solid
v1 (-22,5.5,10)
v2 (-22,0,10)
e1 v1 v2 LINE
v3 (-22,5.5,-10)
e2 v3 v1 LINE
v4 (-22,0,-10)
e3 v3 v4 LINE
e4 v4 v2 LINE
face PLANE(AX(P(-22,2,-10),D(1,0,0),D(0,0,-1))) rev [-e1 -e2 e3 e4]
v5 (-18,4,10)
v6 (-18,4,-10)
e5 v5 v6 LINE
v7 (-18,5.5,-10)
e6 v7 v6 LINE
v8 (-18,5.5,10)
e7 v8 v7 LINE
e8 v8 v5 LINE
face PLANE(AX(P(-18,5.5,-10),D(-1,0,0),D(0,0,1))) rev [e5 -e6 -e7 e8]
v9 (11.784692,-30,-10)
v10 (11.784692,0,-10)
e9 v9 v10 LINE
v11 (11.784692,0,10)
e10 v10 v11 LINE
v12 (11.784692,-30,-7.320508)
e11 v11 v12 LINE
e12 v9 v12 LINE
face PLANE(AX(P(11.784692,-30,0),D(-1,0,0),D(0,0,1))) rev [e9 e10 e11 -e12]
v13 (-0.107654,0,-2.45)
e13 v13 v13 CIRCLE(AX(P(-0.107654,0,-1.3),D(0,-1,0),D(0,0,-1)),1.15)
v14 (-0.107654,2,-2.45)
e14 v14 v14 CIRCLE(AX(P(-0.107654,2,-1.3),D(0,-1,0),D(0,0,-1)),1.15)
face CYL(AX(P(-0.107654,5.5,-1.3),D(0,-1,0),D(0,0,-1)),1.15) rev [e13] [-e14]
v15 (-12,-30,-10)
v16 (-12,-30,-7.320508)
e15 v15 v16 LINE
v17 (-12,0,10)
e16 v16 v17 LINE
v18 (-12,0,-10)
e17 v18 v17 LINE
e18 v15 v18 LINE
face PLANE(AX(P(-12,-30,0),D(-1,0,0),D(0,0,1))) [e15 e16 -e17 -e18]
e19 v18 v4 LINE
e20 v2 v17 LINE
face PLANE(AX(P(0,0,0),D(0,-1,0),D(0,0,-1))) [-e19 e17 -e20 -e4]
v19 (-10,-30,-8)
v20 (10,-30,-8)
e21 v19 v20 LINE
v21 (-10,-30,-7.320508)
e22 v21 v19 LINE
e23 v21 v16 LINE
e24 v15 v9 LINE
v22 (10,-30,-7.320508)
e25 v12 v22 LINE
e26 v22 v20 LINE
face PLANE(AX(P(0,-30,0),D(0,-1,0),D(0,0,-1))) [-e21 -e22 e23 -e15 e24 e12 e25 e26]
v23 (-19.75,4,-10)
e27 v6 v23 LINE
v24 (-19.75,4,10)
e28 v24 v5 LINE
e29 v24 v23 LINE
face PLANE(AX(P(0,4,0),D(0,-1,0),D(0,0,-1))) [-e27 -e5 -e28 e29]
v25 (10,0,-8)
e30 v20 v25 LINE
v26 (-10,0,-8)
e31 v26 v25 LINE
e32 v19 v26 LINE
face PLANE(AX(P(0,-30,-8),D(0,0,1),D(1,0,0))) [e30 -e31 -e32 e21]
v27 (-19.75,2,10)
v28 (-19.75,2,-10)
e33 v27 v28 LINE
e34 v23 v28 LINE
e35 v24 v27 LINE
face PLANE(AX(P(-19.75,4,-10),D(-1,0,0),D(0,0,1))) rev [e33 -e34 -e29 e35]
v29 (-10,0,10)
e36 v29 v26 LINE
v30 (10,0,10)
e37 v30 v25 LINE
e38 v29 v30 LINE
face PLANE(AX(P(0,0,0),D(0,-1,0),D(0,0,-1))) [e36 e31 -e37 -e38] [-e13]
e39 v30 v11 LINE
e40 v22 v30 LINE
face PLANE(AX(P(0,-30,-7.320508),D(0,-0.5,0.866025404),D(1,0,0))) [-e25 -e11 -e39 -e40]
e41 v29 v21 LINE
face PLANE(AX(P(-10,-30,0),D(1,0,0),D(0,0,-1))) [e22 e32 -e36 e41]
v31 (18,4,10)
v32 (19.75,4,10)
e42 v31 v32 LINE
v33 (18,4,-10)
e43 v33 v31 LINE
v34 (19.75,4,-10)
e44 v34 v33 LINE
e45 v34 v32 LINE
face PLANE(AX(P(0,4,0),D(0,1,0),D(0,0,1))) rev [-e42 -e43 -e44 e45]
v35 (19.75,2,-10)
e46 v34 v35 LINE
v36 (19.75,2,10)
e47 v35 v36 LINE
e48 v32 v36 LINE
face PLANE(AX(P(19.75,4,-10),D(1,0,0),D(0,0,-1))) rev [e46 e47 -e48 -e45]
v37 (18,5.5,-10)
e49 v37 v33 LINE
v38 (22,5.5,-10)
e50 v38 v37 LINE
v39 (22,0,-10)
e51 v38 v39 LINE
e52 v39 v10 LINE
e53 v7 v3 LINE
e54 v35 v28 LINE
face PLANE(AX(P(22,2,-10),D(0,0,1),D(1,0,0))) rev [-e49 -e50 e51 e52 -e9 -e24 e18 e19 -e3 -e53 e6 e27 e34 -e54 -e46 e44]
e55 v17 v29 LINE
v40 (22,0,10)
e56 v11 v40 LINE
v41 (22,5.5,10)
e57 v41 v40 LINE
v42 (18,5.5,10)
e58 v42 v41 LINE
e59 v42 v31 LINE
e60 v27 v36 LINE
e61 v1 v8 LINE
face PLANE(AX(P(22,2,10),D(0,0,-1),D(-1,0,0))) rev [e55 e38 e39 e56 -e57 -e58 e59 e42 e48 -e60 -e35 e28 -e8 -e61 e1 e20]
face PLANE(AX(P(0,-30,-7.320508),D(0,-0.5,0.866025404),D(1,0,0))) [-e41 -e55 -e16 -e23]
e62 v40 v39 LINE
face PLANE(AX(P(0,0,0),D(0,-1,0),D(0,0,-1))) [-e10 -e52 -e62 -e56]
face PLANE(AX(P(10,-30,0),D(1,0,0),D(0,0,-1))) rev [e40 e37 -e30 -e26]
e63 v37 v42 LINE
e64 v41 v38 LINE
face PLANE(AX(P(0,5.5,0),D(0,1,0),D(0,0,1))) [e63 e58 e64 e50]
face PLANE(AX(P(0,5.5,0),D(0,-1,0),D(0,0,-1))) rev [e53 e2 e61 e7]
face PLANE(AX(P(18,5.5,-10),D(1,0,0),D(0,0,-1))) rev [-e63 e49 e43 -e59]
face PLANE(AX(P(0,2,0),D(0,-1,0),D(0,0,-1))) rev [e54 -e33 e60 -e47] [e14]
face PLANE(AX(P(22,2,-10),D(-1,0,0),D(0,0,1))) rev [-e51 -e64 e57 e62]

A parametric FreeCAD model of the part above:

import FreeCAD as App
import Part
import Sketcher
from FreeCAD import Vector


def edges_at(feature, points):
    """Names of the edges that pass closest to the given points."""
    edges = feature.Shape.Edges
    near = lambda p: min(range(len(edges)), key=lambda i: edges[i].distToShape(Part.Vertex(*p))[0])
    return sorted({f"Edge{near(p) + 1}" for p in points})

doc = App.newDocument("Part")
body = doc.addObject("PartDesign::Body", "Body")

# Sketch on XZ plane
sketch1 = doc.addObject("Sketcher::SketchObject", "Sketch")
body.addObject(sketch1)
sketch1.AttachmentSupport = (doc.XZ_Plane, [""])
sketch1.MapMode = "FlatFace"
sketch1.addGeometry([
    Part.LineSegment(Vector(-22, -10, 0), Vector(-22, 10, 0)),
    Part.LineSegment(Vector(-22, 10, 0), Vector(22, 10, 0)),
    Part.LineSegment(Vector(22, 10, 0), Vector(22, -10, 0)),
    Part.LineSegment(Vector(22, -10, 0), Vector(-22, -10, 0)),
], False)
sketch1.addConstraint([
    Sketcher.Constraint("Coincident", 0, 2, 1, 1),
    Sketcher.Constraint("Coincident", 1, 2, 2, 1),
    Sketcher.Constraint("Coincident", 2, 2, 3, 1),
    Sketcher.Constraint("Coincident", 3, 2, 0, 1),
    Sketcher.Constraint("Vertical", 0),
    Sketcher.Constraint("Horizontal", 1),
    Sketcher.Constraint("Vertical", 2),
    Sketcher.Constraint("Horizontal", 3),
    Sketcher.Constraint("Symmetric", 0, 2, 2, 2, -1, 1),
    Sketcher.Constraint("DistanceX", 1, 1, 1, 2, 44.0),
    Sketcher.Constraint("DistanceY", 0, 1, 0, 2, 20.0),
])
pad1 = doc.addObject("PartDesign::Pad", "Pad")
body.addObject(pad1)
pad1.Profile = sketch1
pad1.Length = 2
pad1.Reversed = True

# Sketch on XZ plane
sketch2 = doc.addObject("Sketcher::SketchObject", "Sketch001")
body.addObject(sketch2)
sketch2.AttachmentSupport = (doc.XZ_Plane, [""])
sketch2.MapMode = "FlatFace"
sketch2.AttachmentOffset = App.Placement(Vector(0, 0, -2), App.Rotation())
sketch2.addGeometry([
    Part.LineSegment(Vector(-22, -10, 0), Vector(-22, 10, 0)),  # 0
    Part.LineSegment(Vector(-22, 10, 0), Vector(-19.8, 10, 0)),  # 1
    Part.LineSegment(Vector(-19.8, 10, 0), Vector(-19.8, -10, 0)),  # 2
    Part.LineSegment(Vector(-19.8, -10, 0), Vector(-22, -10, 0)),  # 3
    Part.LineSegment(Vector(19.8, -10, 0), Vector(19.8, 10, 0)),  # 4
    Part.LineSegment(Vector(19.8, 10, 0), Vector(22, 10, 0)),  # 5
    Part.LineSegment(Vector(22, 10, 0), Vector(22, -10, 0)),  # 6
    Part.LineSegment(Vector(22, -10, 0), Vector(19.8, -10, 0)),  # 7
], False)
sketch2.addConstraint([
    Sketcher.Constraint("Coincident", 0, 2, 1, 1),
    Sketcher.Constraint("Coincident", 1, 2, 2, 1),
    Sketcher.Constraint("Coincident", 2, 2, 3, 1),
    Sketcher.Constraint("Coincident", 3, 2, 0, 1),
    Sketcher.Constraint("Coincident", 4, 2, 5, 1),
    Sketcher.Constraint("Coincident", 5, 2, 6, 1),
    Sketcher.Constraint("Coincident", 6, 2, 7, 1),
    Sketcher.Constraint("Coincident", 7, 2, 4, 1),
    Sketcher.Constraint("Vertical", 0),
    Sketcher.Constraint("Horizontal", 1),
    Sketcher.Constraint("Vertical", 2),
    Sketcher.Constraint("Horizontal", 3),
    Sketcher.Constraint("Vertical", 4),
    Sketcher.Constraint("Horizontal", 5),
    Sketcher.Constraint("Vertical", 6),
    Sketcher.Constraint("Horizontal", 7),
    Sketcher.Constraint("Symmetric", 2, 2, 4, 2, -1, 1),
    Sketcher.Constraint("Symmetric", 0, 2, 6, 2, -1, 1),
    Sketcher.Constraint("Horizontal", 1, 2, 4, 2),
    Sketcher.Constraint("DistanceY", 0, 1, 0, 2, 20.0),
    Sketcher.Constraint("DistanceX", 0, 2, -1, 1, 22.0),
    Sketcher.Constraint("DistanceX", 1, 1, 1, 2, 2.25),
])
pad2 = doc.addObject("PartDesign::Pad", "Pad001")
body.addObject(pad2)
pad2.Profile = sketch2
pad2.Length = 2
pad2.Reversed = True

# Sketch on XZ plane
sketch3 = doc.addObject("Sketcher::SketchObject", "Sketch002")
body.addObject(sketch3)
sketch3.AttachmentSupport = (doc.XZ_Plane, [""])
sketch3.MapMode = "FlatFace"
sketch3.AttachmentOffset = App.Placement(Vector(0, 0, -4), App.Rotation())
sketch3.addGeometry([
    Part.LineSegment(Vector(-22, -10, 0), Vector(-22, 10, 0)),  # 0
    Part.LineSegment(Vector(-22, 10, 0), Vector(-18, 10, 0)),  # 1
    Part.LineSegment(Vector(-18, 10, 0), Vector(-18, -10, 0)),  # 2
    Part.LineSegment(Vector(-18, -10, 0), Vector(-22, -10, 0)),  # 3
    Part.LineSegment(Vector(18, -10, 0), Vector(18, 10, 0)),  # 4
    Part.LineSegment(Vector(18, 10, 0), Vector(22, 10, 0)),  # 5
    Part.LineSegment(Vector(22, 10, 0), Vector(22, -10, 0)),  # 6
    Part.LineSegment(Vector(22, -10, 0), Vector(18, -10, 0)),  # 7
], False)
sketch3.addConstraint([
    Sketcher.Constraint("Coincident", 0, 2, 1, 1),
    Sketcher.Constraint("Coincident", 1, 2, 2, 1),
    Sketcher.Constraint("Coincident", 2, 2, 3, 1),
    Sketcher.Constraint("Coincident", 3, 2, 0, 1),
    Sketcher.Constraint("Coincident", 4, 2, 5, 1),
    Sketcher.Constraint("Coincident", 5, 2, 6, 1),
    Sketcher.Constraint("Coincident", 6, 2, 7, 1),
    Sketcher.Constraint("Coincident", 7, 2, 4, 1),
    Sketcher.Constraint("Vertical", 0),
    Sketcher.Constraint("Horizontal", 1),
    Sketcher.Constraint("Vertical", 2),
    Sketcher.Constraint("Horizontal", 3),
    Sketcher.Constraint("Vertical", 4),
    Sketcher.Constraint("Horizontal", 5),
    Sketcher.Constraint("Vertical", 6),
    Sketcher.Constraint("Horizontal", 7),
    Sketcher.Constraint("Symmetric", 2, 2, 4, 2, -1, 1),
    Sketcher.Constraint("Symmetric", 0, 2, 6, 2, -1, 1),
    Sketcher.Constraint("Horizontal", 1, 2, 4, 2),
    Sketcher.Constraint("DistanceX", 1, 1, 1, 2, 4.0),
    Sketcher.Constraint("DistanceY", 0, 1, 0, 2, 20.0),
    Sketcher.Constraint("DistanceX", 0, 2, -1, 1, 22.0),
])
pad3 = doc.addObject("PartDesign::Pad", "Pad002")
body.addObject(pad3)
pad3.Profile = sketch3
pad3.Length = 1.5
pad3.Reversed = True

# Sketch on XZ plane
sketch4 = doc.addObject("Sketcher::SketchObject", "Sketch003")
body.addObject(sketch4)
sketch4.AttachmentSupport = (doc.XZ_Plane, [""])
sketch4.MapMode = "FlatFace"
sketch4.addGeometry([
    Part.LineSegment(Vector(-12, -10, 0), Vector(11.8, -10, 0)),  # 0
    Part.LineSegment(Vector(11.8, -10, 0), Vector(11.8, 10, 0)),  # 1
    Part.LineSegment(Vector(11.8, 10, 0), Vector(10, 10, 0)),  # 2
    Part.LineSegment(Vector(10, 10, 0), Vector(10, -8, 0)),  # 3
    Part.LineSegment(Vector(10, -8, 0), Vector(-10, -8, 0)),  # 4
    Part.LineSegment(Vector(-10, -8, 0), Vector(-10, 10, 0)),  # 5
    Part.LineSegment(Vector(-10, 10, 0), Vector(-12, 10, 0)),  # 6
    Part.LineSegment(Vector(-12, 10, 0), Vector(-12, -10, 0)),  # 7
], False)
sketch4.addConstraint([
    Sketcher.Constraint("Coincident", 0, 2, 1, 1),
    Sketcher.Constraint("Coincident", 1, 2, 2, 1),
    Sketcher.Constraint("Coincident", 2, 2, 3, 1),
    Sketcher.Constraint("Coincident", 3, 2, 4, 1),
    Sketcher.Constraint("Coincident", 4, 2, 5, 1),
    Sketcher.Constraint("Coincident", 5, 2, 6, 1),
    Sketcher.Constraint("Coincident", 6, 2, 7, 1),
    Sketcher.Constraint("Coincident", 7, 2, 0, 1),
    Sketcher.Constraint("Horizontal", 0),
    Sketcher.Constraint("Vertical", 1),
    Sketcher.Constraint("Horizontal", 2),
    Sketcher.Constraint("Vertical", 3),
    Sketcher.Constraint("Horizontal", 4),
    Sketcher.Constraint("Vertical", 5),
    Sketcher.Constraint("Horizontal", 6),
    Sketcher.Constraint("Vertical", 7),
    Sketcher.Constraint("Symmetric", 2, 2, 5, 2, -2),
    Sketcher.Constraint("Equal", 4, 1),
    Sketcher.Constraint("DistanceX", 4, 2, 4, 1, 20.0),
    Sketcher.Constraint("DistanceX", 6, 2, 6, 1, 2.0),
    Sketcher.Constraint("DistanceY", 3, 2, 3, 1, 18.0),
    Sketcher.Constraint("DistanceY", 0, 2, -1, 1, 10.0),
    Sketcher.Constraint("DistanceX", 0, 1, 0, 2, 23.784692),
])
pad4 = doc.addObject("PartDesign::Pad", "Pad003")
body.addObject(pad4)
pad4.Profile = sketch4
pad4.Length = 30
doc.recompute()

chamfer = doc.addObject("PartDesign::Chamfer", "Chamfer")
body.addObject(chamfer)
chamfer.Base = (pad4, edges_at(pad4, [(10.892, -30, 10), (-11, -30, 10)]))
chamfer.ChamferType = "Two distances"
chamfer.Size = 30
chamfer.Size2 = 17.320508
chamfer.FlipDirection = True

# Sketch on XZ plane
sketch5 = doc.addObject("Sketcher::SketchObject", "Sketch004")
body.addObject(sketch5)
sketch5.AttachmentSupport = (doc.XZ_Plane, [""])
sketch5.MapMode = "FlatFace"
sketch5.addGeometry(Part.Circle(Vector(-0.1, -1.3, 0), Vector(0, 0, 1), 1.1), False)
sketch5.addConstraint([
    Sketcher.Constraint("Diameter", 0, 2.3),
    Sketcher.Constraint("DistanceY", 0, 3, -1, 1, 1.3),
    Sketcher.Constraint("DistanceX", 0, 3, -1, 1, 0.107654),
])
pocket1 = doc.addObject("PartDesign::Pocket", "Pocket")
body.addObject(pocket1)
pocket1.Profile = sketch5
pocket1.Type = "ThroughAll"

doc.recompute()
